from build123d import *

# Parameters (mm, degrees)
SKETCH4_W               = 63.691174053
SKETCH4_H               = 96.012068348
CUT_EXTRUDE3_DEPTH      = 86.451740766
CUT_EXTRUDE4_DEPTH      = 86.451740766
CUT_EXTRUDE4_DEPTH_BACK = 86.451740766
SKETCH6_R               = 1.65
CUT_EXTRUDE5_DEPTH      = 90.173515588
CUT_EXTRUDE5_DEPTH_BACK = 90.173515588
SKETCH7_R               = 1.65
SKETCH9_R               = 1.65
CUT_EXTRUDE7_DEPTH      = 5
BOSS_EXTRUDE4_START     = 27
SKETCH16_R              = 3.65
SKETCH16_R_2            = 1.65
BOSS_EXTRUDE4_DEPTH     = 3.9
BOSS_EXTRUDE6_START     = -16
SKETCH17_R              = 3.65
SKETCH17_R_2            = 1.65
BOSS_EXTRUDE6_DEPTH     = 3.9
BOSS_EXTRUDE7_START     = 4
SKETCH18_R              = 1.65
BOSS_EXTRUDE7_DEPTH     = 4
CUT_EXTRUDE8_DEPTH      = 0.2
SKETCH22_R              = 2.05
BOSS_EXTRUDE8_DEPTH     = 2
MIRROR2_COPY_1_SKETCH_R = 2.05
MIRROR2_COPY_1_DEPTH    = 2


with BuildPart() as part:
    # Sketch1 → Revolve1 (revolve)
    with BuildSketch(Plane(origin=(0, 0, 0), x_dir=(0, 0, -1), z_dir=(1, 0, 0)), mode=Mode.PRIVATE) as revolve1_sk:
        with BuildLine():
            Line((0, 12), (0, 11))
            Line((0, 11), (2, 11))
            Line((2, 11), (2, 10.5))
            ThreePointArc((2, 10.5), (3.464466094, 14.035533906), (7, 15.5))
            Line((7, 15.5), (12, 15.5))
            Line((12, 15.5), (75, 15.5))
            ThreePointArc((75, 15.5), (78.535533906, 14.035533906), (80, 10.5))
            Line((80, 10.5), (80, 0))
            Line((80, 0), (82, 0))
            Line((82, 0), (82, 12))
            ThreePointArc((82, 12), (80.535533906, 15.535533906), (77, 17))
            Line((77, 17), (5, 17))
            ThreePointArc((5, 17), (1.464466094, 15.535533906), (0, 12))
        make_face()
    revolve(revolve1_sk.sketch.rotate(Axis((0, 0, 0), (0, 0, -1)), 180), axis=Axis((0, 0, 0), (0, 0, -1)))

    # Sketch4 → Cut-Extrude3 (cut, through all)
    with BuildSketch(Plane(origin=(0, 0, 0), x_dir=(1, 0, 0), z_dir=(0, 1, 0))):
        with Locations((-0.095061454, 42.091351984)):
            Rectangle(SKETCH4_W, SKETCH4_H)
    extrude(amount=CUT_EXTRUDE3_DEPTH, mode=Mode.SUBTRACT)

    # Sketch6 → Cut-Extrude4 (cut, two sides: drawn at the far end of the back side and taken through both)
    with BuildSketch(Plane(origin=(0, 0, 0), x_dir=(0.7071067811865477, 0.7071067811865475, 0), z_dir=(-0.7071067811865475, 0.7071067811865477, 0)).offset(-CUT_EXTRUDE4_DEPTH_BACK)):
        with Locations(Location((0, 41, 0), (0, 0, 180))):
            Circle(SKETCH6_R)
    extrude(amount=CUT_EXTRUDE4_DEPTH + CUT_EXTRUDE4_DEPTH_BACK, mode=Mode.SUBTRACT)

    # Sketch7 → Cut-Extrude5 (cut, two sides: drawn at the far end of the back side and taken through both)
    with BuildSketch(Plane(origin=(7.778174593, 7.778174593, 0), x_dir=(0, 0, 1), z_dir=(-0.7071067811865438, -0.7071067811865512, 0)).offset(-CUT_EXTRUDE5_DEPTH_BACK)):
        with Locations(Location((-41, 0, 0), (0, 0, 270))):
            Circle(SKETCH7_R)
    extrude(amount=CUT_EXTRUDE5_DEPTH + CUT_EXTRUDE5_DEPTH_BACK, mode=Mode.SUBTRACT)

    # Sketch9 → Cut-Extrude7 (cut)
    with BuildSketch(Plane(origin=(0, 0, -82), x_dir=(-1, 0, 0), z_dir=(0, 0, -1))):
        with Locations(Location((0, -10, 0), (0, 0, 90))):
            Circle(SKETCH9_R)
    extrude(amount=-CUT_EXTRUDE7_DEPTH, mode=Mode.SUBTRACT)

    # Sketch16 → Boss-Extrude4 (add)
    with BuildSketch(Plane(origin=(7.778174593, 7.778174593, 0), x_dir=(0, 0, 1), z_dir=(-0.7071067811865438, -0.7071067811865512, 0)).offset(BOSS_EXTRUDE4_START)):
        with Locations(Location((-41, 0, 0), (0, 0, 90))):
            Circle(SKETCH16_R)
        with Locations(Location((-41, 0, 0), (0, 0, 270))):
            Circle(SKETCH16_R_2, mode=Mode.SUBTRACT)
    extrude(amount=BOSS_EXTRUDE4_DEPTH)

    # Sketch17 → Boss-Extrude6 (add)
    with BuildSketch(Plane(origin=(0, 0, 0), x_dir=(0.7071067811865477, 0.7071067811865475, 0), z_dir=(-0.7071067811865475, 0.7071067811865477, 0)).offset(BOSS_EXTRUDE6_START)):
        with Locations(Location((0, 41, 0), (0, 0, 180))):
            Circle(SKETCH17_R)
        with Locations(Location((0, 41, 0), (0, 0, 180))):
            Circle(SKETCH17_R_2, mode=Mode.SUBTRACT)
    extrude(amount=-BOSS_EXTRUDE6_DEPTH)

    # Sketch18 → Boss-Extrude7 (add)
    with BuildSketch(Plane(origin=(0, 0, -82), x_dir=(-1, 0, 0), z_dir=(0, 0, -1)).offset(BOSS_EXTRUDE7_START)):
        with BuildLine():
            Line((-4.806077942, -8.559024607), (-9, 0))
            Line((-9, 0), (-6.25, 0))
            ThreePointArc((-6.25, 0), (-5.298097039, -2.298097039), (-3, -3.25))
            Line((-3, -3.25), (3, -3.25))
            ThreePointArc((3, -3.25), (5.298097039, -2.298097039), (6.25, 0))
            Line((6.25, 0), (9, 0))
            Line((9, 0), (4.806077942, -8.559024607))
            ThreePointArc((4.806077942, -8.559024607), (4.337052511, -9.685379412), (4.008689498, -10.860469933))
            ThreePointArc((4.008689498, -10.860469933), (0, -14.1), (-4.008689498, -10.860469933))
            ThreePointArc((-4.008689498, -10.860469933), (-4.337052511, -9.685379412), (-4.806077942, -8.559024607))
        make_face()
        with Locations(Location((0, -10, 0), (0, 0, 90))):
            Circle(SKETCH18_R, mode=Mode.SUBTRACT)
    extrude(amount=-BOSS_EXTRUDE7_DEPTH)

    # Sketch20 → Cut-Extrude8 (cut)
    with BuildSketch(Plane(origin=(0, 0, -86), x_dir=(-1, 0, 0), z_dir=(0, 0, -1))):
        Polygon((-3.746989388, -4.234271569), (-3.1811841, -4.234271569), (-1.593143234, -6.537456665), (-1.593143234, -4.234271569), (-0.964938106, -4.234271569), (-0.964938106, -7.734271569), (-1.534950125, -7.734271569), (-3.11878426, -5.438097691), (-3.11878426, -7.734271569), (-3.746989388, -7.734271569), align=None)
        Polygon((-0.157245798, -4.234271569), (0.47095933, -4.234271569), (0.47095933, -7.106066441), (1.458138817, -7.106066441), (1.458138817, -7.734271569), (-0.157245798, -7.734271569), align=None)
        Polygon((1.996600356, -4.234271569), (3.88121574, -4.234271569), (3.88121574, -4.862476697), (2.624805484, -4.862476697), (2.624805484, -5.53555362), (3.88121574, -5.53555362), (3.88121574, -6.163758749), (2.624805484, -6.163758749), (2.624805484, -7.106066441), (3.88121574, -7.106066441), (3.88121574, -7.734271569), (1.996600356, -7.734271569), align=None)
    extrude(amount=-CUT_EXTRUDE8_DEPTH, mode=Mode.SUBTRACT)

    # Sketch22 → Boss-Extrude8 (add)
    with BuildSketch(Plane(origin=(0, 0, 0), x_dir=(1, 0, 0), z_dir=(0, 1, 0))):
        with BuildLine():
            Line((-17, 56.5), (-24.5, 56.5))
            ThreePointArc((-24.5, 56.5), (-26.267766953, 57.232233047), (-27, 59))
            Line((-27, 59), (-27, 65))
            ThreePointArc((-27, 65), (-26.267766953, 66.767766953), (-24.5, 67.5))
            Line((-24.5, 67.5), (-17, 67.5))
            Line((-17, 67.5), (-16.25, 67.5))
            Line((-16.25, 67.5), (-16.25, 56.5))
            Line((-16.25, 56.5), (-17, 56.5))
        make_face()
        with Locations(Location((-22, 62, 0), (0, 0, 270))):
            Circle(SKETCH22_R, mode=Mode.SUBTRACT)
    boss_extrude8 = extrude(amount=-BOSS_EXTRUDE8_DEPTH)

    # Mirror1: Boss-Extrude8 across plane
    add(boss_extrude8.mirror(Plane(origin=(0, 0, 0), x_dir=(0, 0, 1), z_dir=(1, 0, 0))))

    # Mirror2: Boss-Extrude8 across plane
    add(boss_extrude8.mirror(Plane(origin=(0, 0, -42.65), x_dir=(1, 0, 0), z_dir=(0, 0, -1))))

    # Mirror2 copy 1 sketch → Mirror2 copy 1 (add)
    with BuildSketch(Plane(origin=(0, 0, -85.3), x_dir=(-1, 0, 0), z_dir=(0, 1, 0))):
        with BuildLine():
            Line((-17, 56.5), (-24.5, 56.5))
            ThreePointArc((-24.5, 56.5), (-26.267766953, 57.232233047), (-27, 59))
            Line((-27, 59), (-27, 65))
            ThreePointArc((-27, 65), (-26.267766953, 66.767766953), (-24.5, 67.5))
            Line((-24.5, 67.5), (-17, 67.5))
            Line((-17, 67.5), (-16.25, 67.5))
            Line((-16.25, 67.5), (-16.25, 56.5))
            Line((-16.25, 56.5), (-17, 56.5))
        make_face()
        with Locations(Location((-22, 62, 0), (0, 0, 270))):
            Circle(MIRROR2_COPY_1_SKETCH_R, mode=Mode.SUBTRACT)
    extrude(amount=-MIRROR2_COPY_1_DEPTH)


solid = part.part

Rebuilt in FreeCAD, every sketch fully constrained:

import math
import FreeCAD as App
import Part
import Sketcher


def add_polygon(sketch, points):
    """Adds a closed chain of lines whose ends are joined by coincident constraints."""
    first, n = sketch.GeometryCount, len(points)
    for a, b in zip(points, points[1:] + points[:1]):
        sketch.addGeometry(Part.LineSegment(App.Vector(*a, 0), App.Vector(*b, 0)), False)
    for i in range(n):
        sketch.addConstraint(Sketcher.Constraint("Coincident", first + i, 2, first + (i + 1) % n, 1))

doc = App.newDocument("Part")
body = doc.addObject("PartDesign::Body", "Body")

# Sketch on YZ plane
sketch1 = body.newObject("Sketcher::SketchObject", "Sketch")
sketch1.AttachmentSupport = (doc.getObject("YZ_Plane"), [""])
sketch1.MapMode = "FlatFace"
sketch1.addGeometry([
    Part.LineSegment(App.Vector(12, 0, 0), App.Vector(11, 0, 0)),  # 0
    Part.LineSegment(App.Vector(11, 0, 0), App.Vector(11, -2, 0)),  # 1
    Part.LineSegment(App.Vector(11, -2, 0), App.Vector(10.5, -2, 0)),  # 2
    Part.ArcOfCircle(Part.Circle(App.Vector(10.5, -7, 0), App.Vector(0, 0, 1), 5), math.radians(0), math.radians(90)),  # 3
    Part.LineSegment(App.Vector(15.5, -7, 0), App.Vector(15.5, -75, 0)),  # 4
    Part.ArcOfCircle(Part.Circle(App.Vector(10.5, -75, 0), App.Vector(0, 0, 1), 5), math.radians(-90), math.radians(0)),  # 5
    Part.LineSegment(App.Vector(10.5, -80, 0), App.Vector(0, -80, 0)),  # 6
    Part.LineSegment(App.Vector(0, -80, 0), App.Vector(0, -82, 0)),  # 7
    Part.LineSegment(App.Vector(0, -82, 0), App.Vector(12, -82, 0)),  # 8
    Part.ArcOfCircle(Part.Circle(App.Vector(12, -77, 0), App.Vector(0, 0, 1), 5), math.radians(-90), math.radians(0)),  # 9
    Part.LineSegment(App.Vector(17, -77, 0), App.Vector(17, -5, 0)),  # 10
    Part.ArcOfCircle(Part.Circle(App.Vector(12, -5, 0), App.Vector(0, 0, 1), 5), math.radians(0), math.radians(90)),  # 11
], False)
sketch1.addConstraint([
    Sketcher.Constraint("Coincident", 0, 2, 1, 1),
    Sketcher.Constraint("Coincident", 1, 2, 2, 1),
    Sketcher.Constraint("Tangent", 2, 2, 3, 2),
    Sketcher.Constraint("Tangent", 3, 1, 4, 1),
    Sketcher.Constraint("Tangent", 4, 2, 5, 2),
    Sketcher.Constraint("Tangent", 5, 1, 6, 1),
    Sketcher.Constraint("Coincident", 6, 2, 7, 1),
    Sketcher.Constraint("Coincident", 7, 2, 8, 1),
    Sketcher.Constraint("Tangent", 8, 2, 9, 1),
    Sketcher.Constraint("Tangent", 9, 2, 10, 1),
    Sketcher.Constraint("Tangent", 10, 2, 11, 1),
    Sketcher.Constraint("Tangent", 11, 2, 0, 1),
    Sketcher.Constraint("Horizontal", 0),
    Sketcher.Constraint("Vertical", 1),
    Sketcher.Constraint("Horizontal", 2),
    Sketcher.Constraint("Vertical", 4),
    Sketcher.Constraint("Horizontal", 6),
    Sketcher.Constraint("Vertical", 7),
    Sketcher.Constraint("Horizontal", 8),
    Sketcher.Constraint("Vertical", 10),
    Sketcher.Constraint("Equal", 3, 5),
    Sketcher.Constraint("Equal", 5, 9),
    Sketcher.Constraint("Equal", 9, 11),
    Sketcher.Constraint("PointOnObject", 0, 2, -1),
    Sketcher.Constraint("PointOnObject", 6, 2, -2),
    Sketcher.Constraint("Equal", 1, 7),
    Sketcher.Constraint("Radius", 3, 5.0),
    Sketcher.Constraint("DistanceX", 0, 2, 0, 1, 1.0),
    Sketcher.Constraint("DistanceX", 8, 1, 8, 2, 12.0),
    Sketcher.Constraint("DistanceY", 1, 2, 1, 1, 2.0),
    Sketcher.Constraint("DistanceY", 4, 2, 4, 1, 68.0),
    Sketcher.Constraint("DistanceX", 2, 2, 2, 1, 0.5),
])
revolution = body.newObject("PartDesign::Revolution", "Revolution")
revolution.Profile = sketch1
revolution.ReferenceAxis = (sketch1, ["V_Axis"])
revolution.Angle = 360

# Sketch on XZ plane
sketch2 = body.newObject("Sketcher::SketchObject", "Sketch001")
sketch2.AttachmentSupport = (doc.getObject("XZ_Plane"), [""])
sketch2.MapMode = "FlatFace"
add_polygon(sketch2, [(-31.940648, -90.097386), (-31.940648, 5.914682), (31.750526, 5.914682), (31.750526, -90.097386)])  # lines 0-3
sketch2.addConstraint([
    Sketcher.Constraint("Vertical", 0),
    Sketcher.Constraint("Horizontal", 1),
    Sketcher.Constraint("Vertical", 2),
    Sketcher.Constraint("Horizontal", 3),
    Sketcher.Constraint("DistanceY", 0, 1, 0, 2, 96.012068),
    Sketcher.Constraint("DistanceX", 1, 1, 1, 2, 63.691174),
    Sketcher.Constraint("DistanceX", 0, 2, -1, 1, 31.940648),
    Sketcher.Constraint("DistanceY", -1, 1, 0, 2, 5.914682),
])
pocket1 = body.newObject("PartDesign::Pocket", "Pocket")
pocket1.Profile = sketch2
pocket1.Type = "ThroughAll"

# Sketch on an angled plane
sketch3 = body.newObject("Sketcher::SketchObject", "Sketch002")
sketch3.Placement = App.Placement(App.Vector(0, 0, 0), App.Rotation(App.Vector(0.707106781, 0.707106781, 0), App.Vector(0, 0, -0.999999999), App.Vector(-0.707106781, 0.707106781, 0), "ZXY"))
sketch3.addGeometry(Part.Circle(App.Vector(0, 41, 0), App.Vector(0, 0, 1), 1.65), False)
sketch3.addConstraint([
    Sketcher.Constraint("PointOnObject", 0, 3, -2),
    Sketcher.Constraint("Diameter", 0, 3.3),
    Sketcher.Constraint("DistanceY", -1, 1, 0, 3, 41.0),
])
pocket2 = body.newObject("PartDesign::Pocket", "Pocket001")
pocket2.Profile = sketch3
pocket2.Type = "ThroughAll"
pocket2.Midplane = True

# Sketch on an angled plane
sketch4 = body.newObject("Sketcher::SketchObject", "Sketch003")
sketch4.Placement = App.Placement(App.Vector(7.778175, 7.778175, 0), App.Rotation(App.Vector(0, 0, 1), App.Vector(-0.707106781, 0.707106781, 0), App.Vector(-0.707106781, -0.707106781, 0), "ZXY"))
sketch4.addGeometry(Part.Circle(App.Vector(-41, 0, 0), App.Vector(0, 0, 1), 1.65), False)
sketch4.addConstraint([
    Sketcher.Constraint("PointOnObject", 0, 3, -1),
    Sketcher.Constraint("Diameter", 0, 3.3),
    Sketcher.Constraint("DistanceX", 0, 3, -1, 1, 41.0),
])
pocket3 = body.newObject("PartDesign::Pocket", "Pocket002")
pocket3.Profile = sketch4
pocket3.Type = "ThroughAll"
pocket3.Midplane = True

# Sketch on XY plane
sketch5 = body.newObject("Sketcher::SketchObject", "Sketch004")
sketch5.AttachmentSupport = (doc.getObject("XY_Plane"), [""])
sketch5.MapMode = "FlatFace"
sketch5.AttachmentOffset = App.Placement(App.Vector(0, 0, -82), App.Rotation())
sketch5.addGeometry(Part.Circle(App.Vector(0, -10, 0), App.Vector(0, 0, 1), 1.65), False)
sketch5.addConstraint([
    Sketcher.Constraint("PointOnObject", 0, 3, -2),
    Sketcher.Constraint("Diameter", 0, 3.3),
    Sketcher.Constraint("DistanceY", 0, 3, -1, 1, 10.0),
])
pocket4 = body.newObject("PartDesign::Pocket", "Pocket003")
pocket4.Profile = sketch5
pocket4.Length = 5
pocket4.Reversed = True

# Sketch on an angled plane
sketch6 = body.newObject("Sketcher::SketchObject", "Sketch005")
sketch6.Placement = App.Placement(App.Vector(-11.313708, -11.313708, 0), App.Rotation(App.Vector(0, 0, 1), App.Vector(-0.707106781, 0.707106781, 0), App.Vector(-0.707106781, -0.707106781, 0), "ZXY"))
sketch6.addGeometry([
    Part.Circle(App.Vector(-41, 0, 0), App.Vector(0, 0, 1), 3.65),
    Part.Circle(App.Vector(-41, 0, 0), App.Vector(0, 0, 1), 1.65),
], False)
sketch6.addConstraint([
    Sketcher.Constraint("Coincident", 1, 3, 0, 3),
    Sketcher.Constraint("PointOnObject", 0, 3, -1),
    Sketcher.Constraint("Diameter", 0, 7.3),
    Sketcher.Constraint("Diameter", 1, 3.3),
    Sketcher.Constraint("DistanceX", 0, 3, -1, 1, 41.0),
])
pad1 = body.newObject("PartDesign::Pad", "Pad")
pad1.Profile = sketch6
pad1.Length = 3.9

# Sketch on an angled plane
sketch7 = body.newObject("Sketcher::SketchObject", "Sketch006")
sketch7.Placement = App.Placement(App.Vector(11.313708, -11.313708, 0), App.Rotation(App.Vector(0.707106781, 0.707106781, 0), App.Vector(0, 0, -0.999999999), App.Vector(-0.707106781, 0.707106781, 0), "ZXY"))
sketch7.addGeometry([
    Part.Circle(App.Vector(0, 41, 0), App.Vector(0, 0, 1), 3.65),
    Part.Circle(App.Vector(0, 41, 0), App.Vector(0, 0, 1), 1.65),
], False)
sketch7.addConstraint([
    Sketcher.Constraint("Coincident", 1, 3, 0, 3),
    Sketcher.Constraint("PointOnObject", 0, 3, -2),
    Sketcher.Constraint("Diameter", 0, 7.3),
    Sketcher.Constraint("Diameter", 1, 3.3),
    Sketcher.Constraint("DistanceY", -1, 1, 0, 3, 41.0),
])
pad2 = body.newObject("PartDesign::Pad", "Pad001")
pad2.Profile = sketch7
pad2.Length = 3.9
pad2.Reversed = True

# Sketch on XY plane
sketch8 = body.newObject("Sketcher::SketchObject", "Sketch007")
sketch8.AttachmentSupport = (doc.getObject("XY_Plane"), [""])
sketch8.MapMode = "FlatFace"
sketch8.AttachmentOffset = App.Placement(App.Vector(0, 0, -86), App.Rotation())
sketch8.addGeometry([
    Part.LineSegment(App.Vector(9, 0, 0), App.Vector(4.806078, -8.559025, 0)),  # 0
    Part.ArcOfCircle(Part.Circle(App.Vector(13.785981, -12.959177, 0), App.Vector(0, 0, 1), 10), math.radians(153.895146), math.radians(167.885224)),  # 1
    Part.ArcOfCircle(Part.Circle(App.Vector(0, -10, 0), App.Vector(0, 0, 1), 4.1), math.radians(-167.885224), math.radians(-12.114776)),  # 2
    Part.ArcOfCircle(Part.Circle(App.Vector(-13.785981, -12.959177, 0), App.Vector(0, 0, 1), 10), math.radians(12.114776), math.radians(26.104854)),  # 3
    Part.LineSegment(App.Vector(-4.806078, -8.559025, 0), App.Vector(-9, 0, 0)),  # 4
    Part.LineSegment(App.Vector(-9, 0, 0), App.Vector(-6.25, 0, 0)),  # 5
    Part.ArcOfCircle(Part.Circle(App.Vector(-3, 0, 0), App.Vector(0, 0, 1), 3.25), math.radians(180), math.radians(270)),  # 6
    Part.LineSegment(App.Vector(-3, -3.25, 0), App.Vector(3, -3.25, 0)),  # 7
    Part.ArcOfCircle(Part.Circle(App.Vector(3, 0, 0), App.Vector(0, 0, 1), 3.25), math.radians(-90), math.radians(0)),  # 8
    Part.LineSegment(App.Vector(6.25, 0, 0), App.Vector(9, 0, 0)),  # 9
    Part.Circle(App.Vector(0, -10, 0), App.Vector(0, 0, 1), 1.65),  # 10
], False)
sketch8.addConstraint([
    Sketcher.Constraint("Tangent", 0, 2, 1, 1),
    Sketcher.Constraint("Tangent", 1, 2, 2, 2),
    Sketcher.Constraint("Tangent", 2, 1, 3, 1),
    Sketcher.Constraint("Tangent", 3, 2, 4, 1),
    Sketcher.Constraint("Coincident", 4, 2, 5, 1),
    Sketcher.Constraint("Coincident", 5, 2, 6, 1),
    Sketcher.Constraint("Tangent", 6, 2, 7, 1),
    Sketcher.Constraint("Tangent", 7, 2, 8, 1),
    Sketcher.Constraint("Coincident", 8, 2, 9, 1),
    Sketcher.Constraint("Coincident", 9, 2, 0, 1),
    Sketcher.Constraint("Horizontal", 5),
    Sketcher.Constraint("Horizontal", 7),
    Sketcher.Constraint("Horizontal", 9),
    Sketcher.Constraint("Coincident", 10, 3, 2, 3),
    Sketcher.Constraint("Equal", 1, 3),
    Sketcher.Constraint("Equal", 6, 8),
    Sketcher.Constraint("Symmetric", 6, 3, 8, 3, -1, 1),
    Sketcher.Constraint("Symmetric", 4, 2, 9, 2, -1, 1),
    Sketcher.Constraint("Symmetric", 1, 3, 3, 3, -2),
    Sketcher.Constraint("PointOnObject", 4, 2, -1),
    Sketcher.Constraint("Radius", 1, 10.0),
    Sketcher.Constraint("Diameter", 10, 3.3),
    Sketcher.Constraint("Radius", 2, 4.1),
    Sketcher.Constraint("DistanceX", 7, 1, 7, 2, 6.0),
    Sketcher.Constraint("Radius", 6, 3.25),
    Sketcher.Constraint("DistanceY", 2, 3, -1, 1, 10.0),
    Sketcher.Constraint("DistanceX", 4, 2, -1, 1, 9.0),
    Sketcher.Constraint("Distance", 0, 9.531311),
])
pad3 = body.newObject("PartDesign::Pad", "Pad002")
pad3.Profile = sketch8
pad3.Length = 4

# Sketch on XY plane
sketch9 = body.newObject("Sketcher::SketchObject", "Sketch008")
sketch9.AttachmentSupport = (doc.getObject("XY_Plane"), [""])
sketch9.MapMode = "FlatFace"
sketch9.AttachmentOffset = App.Placement(App.Vector(0, 0, -86), App.Rotation())
add_polygon(sketch9, [(3.181184, -4.234272), (3.746989, -4.234272), (3.746989, -7.734272), (3.118784, -7.734272), (3.118784, -5.438098), (1.53495, -7.734272), (0.964938, -7.734272), (0.964938, -4.234272), (1.593143, -4.234272), (1.593143, -6.537457)])  # lines 0-9
add_polygon(sketch9, [(-0.470959, -4.234272), (0.157246, -4.234272), (0.157246, -7.734272), (-1.458139, -7.734272), (-1.458139, -7.106066), (-0.470959, -7.106066)])  # lines 10-15
add_polygon(sketch9, [(-3.881216, -4.234272), (-1.9966, -4.234272), (-1.9966, -7.734272), (-3.881216, -7.734272), (-3.881216, -7.106066), (-2.624805, -7.106066), (-2.624805, -6.163759), (-3.881216, -6.163759), (-3.881216, -5.535554), (-2.624805, -5.535554), (-2.624805, -4.862477), (-3.881216, -4.862477)])  # lines 16-27
sketch9.addConstraint([
    Sketcher.Constraint("Horizontal", 0),
    Sketcher.Constraint("Vertical", 1),
    Sketcher.Constraint("Horizontal", 2),
    Sketcher.Constraint("Vertical", 3),
    Sketcher.Constraint("Horizontal", 5),
    Sketcher.Constraint("Vertical", 6),
    Sketcher.Constraint("Horizontal", 7),
    Sketcher.Constraint("Vertical", 8),
    Sketcher.Constraint("Horizontal", 10),
    Sketcher.Constraint("Vertical", 11),
    Sketcher.Constraint("Horizontal", 12),
    Sketcher.Constraint("Vertical", 13),
    Sketcher.Constraint("Horizontal", 14),
    Sketcher.Constraint("Vertical", 15),
    Sketcher.Constraint("Horizontal", 16),
    Sketcher.Constraint("Vertical", 17),
    Sketcher.Constraint("Horizontal", 18),
    Sketcher.Constraint("Vertical", 19),
    Sketcher.Constraint("Horizontal", 20),
    Sketcher.Constraint("Vertical", 21),
    Sketcher.Constraint("Horizontal", 22),
    Sketcher.Constraint("Vertical", 23),
    Sketcher.Constraint("Horizontal", 24),
    Sketcher.Constraint("Vertical", 25),
    Sketcher.Constraint("Horizontal", 26),
    Sketcher.Constraint("Vertical", 27),
    Sketcher.Constraint("Horizontal", 2, 2, 4, 2),
    Sketcher.Constraint("Horizontal", 0, 2, 6, 2),
    Sketcher.Constraint("Horizontal", 9, 2, 10, 2),
    Sketcher.Constraint("Horizontal", 5, 2, 11, 2),
    Sketcher.Constraint("Horizontal", 15, 2, 16, 2),
    Sketcher.Constraint("Horizontal", 12, 2, 17, 2),
    Sketcher.Constraint("Horizontal", 14, 2, 19, 2),
    Sketcher.Constraint("Vertical", 19, 2, 22, 2),
    Sketcher.Constraint("Vertical", 21, 2, 24, 2),
    Sketcher.Constraint("Vertical", 23, 2, 26, 2),
    Sketcher.Constraint("Equal", 2, 7),
    Sketcher.Constraint("Equal", 7, 10),
    Sketcher.Constraint("Equal", 10, 13),
    Sketcher.Constraint("Equal", 19, 23),
    Sketcher.Constraint("Equal", 23, 27),
    Sketcher.Constraint("DistanceY", 1, 2, 1, 1, 3.5),
    Sketcher.Constraint("DistanceX", 14, 1, 14, 2, 0.987179),
    Sketcher.Constraint("DistanceX", 20, 1, 20, 2, 1.25641),
    Sketcher.Constraint("DistanceX", 16, 2, -1, 1, 1.9966),
    Sketcher.Constraint("DistanceX", 3, 2, 9, 2, 0.0624),
    Sketcher.Constraint("DistanceX", 0, 1, 0, 2, 0.565805),
    Sketcher.Constraint("DistanceX", 5, 2, 5, 1, 0.570012),
    Sketcher.Constraint("DistanceX", 16, 1, 16, 2, 1.884615),
    Sketcher.Constraint("DistanceY", 3, 1, 3, 2, 2.296174),
    Sketcher.Constraint("DistanceY", 8, 2, 8, 1, 2.303185),
    Sketcher.Constraint("DistanceY", 21, 1, 21, 2, 0.942308),
    Sketcher.Constraint("DistanceX", -1, 1, 0, 2, 3.746989),
    Sketcher.Constraint("DistanceY", 0, 2, -1, 1, 4.234272),
    Sketcher.Constraint("DistanceX", -1, 1, 4, 2, 1.53495),
    Sketcher.Constraint("DistanceX", 12, 2, -1, 1, 1.458139),
])
pocket5 = body.newObject("PartDesign::Pocket", "Pocket004")
pocket5.Profile = sketch9
pocket5.Length = 0.2
pocket5.Reversed = True

# Sketch on XZ plane
sketch10 = body.newObject("Sketcher::SketchObject", "Sketch009")
sketch10.AttachmentSupport = (doc.getObject("XZ_Plane"), [""])
sketch10.MapMode = "FlatFace"
sketch10.addGeometry([
    Part.ArcOfCircle(Part.Circle(App.Vector(-24.5, -59, 0), App.Vector(0, 0, 1), 2.5), math.radians(90), math.radians(180)),  # 0
    Part.LineSegment(App.Vector(-24.5, -56.5, 0), App.Vector(-16.25, -56.5, 0)),  # 1
    Part.LineSegment(App.Vector(-16.25, -56.5, 0), App.Vector(-16.25, -67.5, 0)),  # 2
    Part.LineSegment(App.Vector(-16.25, -67.5, 0), App.Vector(-24.5, -67.5, 0)),  # 3
    Part.ArcOfCircle(Part.Circle(App.Vector(-24.5, -65, 0), App.Vector(0, 0, 1), 2.5), math.radians(180), math.radians(270)),  # 4
    Part.LineSegment(App.Vector(-27, -65, 0), App.Vector(-27, -59, 0)),  # 5
    Part.Circle(App.Vector(-22, -62, 0), App.Vector(0, 0, 1), 2.05),  # 6
], False)
sketch10.addConstraint([
    Sketcher.Constraint("Tangent", 0, 1, 1, 1),
    Sketcher.Constraint("Coincident", 1, 2, 2, 1),
    Sketcher.Constraint("Coincident", 2, 2, 3, 1),
    Sketcher.Constraint("Tangent", 3, 2, 4, 2),
    Sketcher.Constraint("Tangent", 4, 1, 5, 1),
    Sketcher.Constraint("Tangent", 5, 2, 0, 2),
    Sketcher.Constraint("Horizontal", 1),
    Sketcher.Constraint("Vertical", 2),
    Sketcher.Constraint("Horizontal", 3),
    Sketcher.Constraint("Vertical", 5),
    Sketcher.Constraint("Equal", 0, 4),
    Sketcher.Constraint("Diameter", 6, 4.1),
    Sketcher.Constraint("Radius", 0, 2.5),
    Sketcher.Constraint("DistanceY", 2, 2, 2, 1, 11.0),
    Sketcher.Constraint("DistanceY", 0, 3, -1, 1, 59.0),
    Sketcher.Constraint("DistanceX", 6, 3, -1, 1, 22.0),
    Sketcher.Constraint("DistanceY", 6, 3, -1, 1, 62.0),
    Sketcher.Constraint("DistanceX", 4, 1, -1, 1, 27.0),
    Sketcher.Constraint("DistanceX", 1, 1, 1, 2, 8.25),
])
pad4 = body.newObject("PartDesign::Pad", "Pad003")
pad4.Profile = sketch10
pad4.Length = 2
doc.recompute()

mirrored = body.newObject("PartDesign::Mirrored", "Mirrored")
mirrored.Originals = [pad4]
mirrored.MirrorPlane = (doc.getObject("YZ_Plane"), [""])
body.Tip = mirrored
doc.recompute()

datumplane = body.newObject("PartDesign::Plane", "DatumPlane")
datumplane.AttachmentSupport = (doc.getObject("XY_Plane"), [""])
datumplane.MapMode = "FlatFace"
datumplane.AttachmentOffset = App.Placement(App.Vector(0, 0, -42.65), App.Rotation())
mirrored2 = body.newObject("PartDesign::Mirrored", "Mirrored001")
mirrored2.Originals = [pad4]
mirrored2.MirrorPlane = (datumplane, [""])
body.Tip = mirrored2

# Sketch on XZ plane
sketch11 = body.newObject("Sketcher::SketchObject", "Sketch010")
sketch11.AttachmentSupport = (doc.getObject("XZ_Plane"), [""])
sketch11.MapMode = "FlatFace"
sketch11.addGeometry([
    Part.ArcOfCircle(Part.Circle(App.Vector(24.5, -26.3, 0), App.Vector(0, 0, 1), 2.5), math.radians(-90), math.radians(0)),  # 0
    Part.LineSegment(App.Vector(24.5, -28.8, 0), App.Vector(16.25, -28.8, 0)),  # 1
    Part.LineSegment(App.Vector(16.25, -28.8, 0), App.Vector(16.25, -17.8, 0)),  # 2
    Part.LineSegment(App.Vector(16.25, -17.8, 0), App.Vector(24.5, -17.8, 0)),  # 3
    Part.ArcOfCircle(Part.Circle(App.Vector(24.5, -20.3, 0), App.Vector(0, 0, 1), 2.5), math.radians(0), math.radians(90)),  # 4
    Part.LineSegment(App.Vector(27, -20.3, 0), App.Vector(27, -26.3, 0)),  # 5
    Part.Circle(App.Vector(22, -23.3, 0), App.Vector(0, 0, 1), 2.05),  # 6
], False)
sketch11.addConstraint([
    Sketcher.Constraint("Tangent", 0, 1, 1, 1),
    Sketcher.Constraint("Coincident", 1, 2, 2, 1),
    Sketcher.Constraint("Coincident", 2, 2, 3, 1),
    Sketcher.Constraint("Tangent", 3, 2, 4, 2),
    Sketcher.Constraint("Tangent", 4, 1, 5, 1),
    Sketcher.Constraint("Tangent", 5, 2, 0, 2),
    Sketcher.Constraint("Horizontal", 1),
    Sketcher.Constraint("Vertical", 2),
    Sketcher.Constraint("Horizontal", 3),
    Sketcher.Constraint("Vertical", 5),
    Sketcher.Constraint("Equal", 0, 4),
    Sketcher.Constraint("Diameter", 6, 4.1),
    Sketcher.Constraint("Radius", 0, 2.5),
    Sketcher.Constraint("DistanceY", 2, 1, 2, 2, 11.0),
    Sketcher.Constraint("DistanceX", -1, 1, 6, 3, 22.0),
    Sketcher.Constraint("DistanceX", -1, 1, 4, 1, 27.0),
    Sketcher.Constraint("DistanceY", 0, 3, 6, 3, 3.0),
    Sketcher.Constraint("DistanceX", 1, 2, 1, 1, 8.25),
    Sketcher.Constraint("DistanceY", 0, 3, -1, 1, 26.3),
])
pad5 = body.newObject("PartDesign::Pad", "Pad004")
pad5.Profile = sketch11
pad5.Length = 2

doc.recompute()
